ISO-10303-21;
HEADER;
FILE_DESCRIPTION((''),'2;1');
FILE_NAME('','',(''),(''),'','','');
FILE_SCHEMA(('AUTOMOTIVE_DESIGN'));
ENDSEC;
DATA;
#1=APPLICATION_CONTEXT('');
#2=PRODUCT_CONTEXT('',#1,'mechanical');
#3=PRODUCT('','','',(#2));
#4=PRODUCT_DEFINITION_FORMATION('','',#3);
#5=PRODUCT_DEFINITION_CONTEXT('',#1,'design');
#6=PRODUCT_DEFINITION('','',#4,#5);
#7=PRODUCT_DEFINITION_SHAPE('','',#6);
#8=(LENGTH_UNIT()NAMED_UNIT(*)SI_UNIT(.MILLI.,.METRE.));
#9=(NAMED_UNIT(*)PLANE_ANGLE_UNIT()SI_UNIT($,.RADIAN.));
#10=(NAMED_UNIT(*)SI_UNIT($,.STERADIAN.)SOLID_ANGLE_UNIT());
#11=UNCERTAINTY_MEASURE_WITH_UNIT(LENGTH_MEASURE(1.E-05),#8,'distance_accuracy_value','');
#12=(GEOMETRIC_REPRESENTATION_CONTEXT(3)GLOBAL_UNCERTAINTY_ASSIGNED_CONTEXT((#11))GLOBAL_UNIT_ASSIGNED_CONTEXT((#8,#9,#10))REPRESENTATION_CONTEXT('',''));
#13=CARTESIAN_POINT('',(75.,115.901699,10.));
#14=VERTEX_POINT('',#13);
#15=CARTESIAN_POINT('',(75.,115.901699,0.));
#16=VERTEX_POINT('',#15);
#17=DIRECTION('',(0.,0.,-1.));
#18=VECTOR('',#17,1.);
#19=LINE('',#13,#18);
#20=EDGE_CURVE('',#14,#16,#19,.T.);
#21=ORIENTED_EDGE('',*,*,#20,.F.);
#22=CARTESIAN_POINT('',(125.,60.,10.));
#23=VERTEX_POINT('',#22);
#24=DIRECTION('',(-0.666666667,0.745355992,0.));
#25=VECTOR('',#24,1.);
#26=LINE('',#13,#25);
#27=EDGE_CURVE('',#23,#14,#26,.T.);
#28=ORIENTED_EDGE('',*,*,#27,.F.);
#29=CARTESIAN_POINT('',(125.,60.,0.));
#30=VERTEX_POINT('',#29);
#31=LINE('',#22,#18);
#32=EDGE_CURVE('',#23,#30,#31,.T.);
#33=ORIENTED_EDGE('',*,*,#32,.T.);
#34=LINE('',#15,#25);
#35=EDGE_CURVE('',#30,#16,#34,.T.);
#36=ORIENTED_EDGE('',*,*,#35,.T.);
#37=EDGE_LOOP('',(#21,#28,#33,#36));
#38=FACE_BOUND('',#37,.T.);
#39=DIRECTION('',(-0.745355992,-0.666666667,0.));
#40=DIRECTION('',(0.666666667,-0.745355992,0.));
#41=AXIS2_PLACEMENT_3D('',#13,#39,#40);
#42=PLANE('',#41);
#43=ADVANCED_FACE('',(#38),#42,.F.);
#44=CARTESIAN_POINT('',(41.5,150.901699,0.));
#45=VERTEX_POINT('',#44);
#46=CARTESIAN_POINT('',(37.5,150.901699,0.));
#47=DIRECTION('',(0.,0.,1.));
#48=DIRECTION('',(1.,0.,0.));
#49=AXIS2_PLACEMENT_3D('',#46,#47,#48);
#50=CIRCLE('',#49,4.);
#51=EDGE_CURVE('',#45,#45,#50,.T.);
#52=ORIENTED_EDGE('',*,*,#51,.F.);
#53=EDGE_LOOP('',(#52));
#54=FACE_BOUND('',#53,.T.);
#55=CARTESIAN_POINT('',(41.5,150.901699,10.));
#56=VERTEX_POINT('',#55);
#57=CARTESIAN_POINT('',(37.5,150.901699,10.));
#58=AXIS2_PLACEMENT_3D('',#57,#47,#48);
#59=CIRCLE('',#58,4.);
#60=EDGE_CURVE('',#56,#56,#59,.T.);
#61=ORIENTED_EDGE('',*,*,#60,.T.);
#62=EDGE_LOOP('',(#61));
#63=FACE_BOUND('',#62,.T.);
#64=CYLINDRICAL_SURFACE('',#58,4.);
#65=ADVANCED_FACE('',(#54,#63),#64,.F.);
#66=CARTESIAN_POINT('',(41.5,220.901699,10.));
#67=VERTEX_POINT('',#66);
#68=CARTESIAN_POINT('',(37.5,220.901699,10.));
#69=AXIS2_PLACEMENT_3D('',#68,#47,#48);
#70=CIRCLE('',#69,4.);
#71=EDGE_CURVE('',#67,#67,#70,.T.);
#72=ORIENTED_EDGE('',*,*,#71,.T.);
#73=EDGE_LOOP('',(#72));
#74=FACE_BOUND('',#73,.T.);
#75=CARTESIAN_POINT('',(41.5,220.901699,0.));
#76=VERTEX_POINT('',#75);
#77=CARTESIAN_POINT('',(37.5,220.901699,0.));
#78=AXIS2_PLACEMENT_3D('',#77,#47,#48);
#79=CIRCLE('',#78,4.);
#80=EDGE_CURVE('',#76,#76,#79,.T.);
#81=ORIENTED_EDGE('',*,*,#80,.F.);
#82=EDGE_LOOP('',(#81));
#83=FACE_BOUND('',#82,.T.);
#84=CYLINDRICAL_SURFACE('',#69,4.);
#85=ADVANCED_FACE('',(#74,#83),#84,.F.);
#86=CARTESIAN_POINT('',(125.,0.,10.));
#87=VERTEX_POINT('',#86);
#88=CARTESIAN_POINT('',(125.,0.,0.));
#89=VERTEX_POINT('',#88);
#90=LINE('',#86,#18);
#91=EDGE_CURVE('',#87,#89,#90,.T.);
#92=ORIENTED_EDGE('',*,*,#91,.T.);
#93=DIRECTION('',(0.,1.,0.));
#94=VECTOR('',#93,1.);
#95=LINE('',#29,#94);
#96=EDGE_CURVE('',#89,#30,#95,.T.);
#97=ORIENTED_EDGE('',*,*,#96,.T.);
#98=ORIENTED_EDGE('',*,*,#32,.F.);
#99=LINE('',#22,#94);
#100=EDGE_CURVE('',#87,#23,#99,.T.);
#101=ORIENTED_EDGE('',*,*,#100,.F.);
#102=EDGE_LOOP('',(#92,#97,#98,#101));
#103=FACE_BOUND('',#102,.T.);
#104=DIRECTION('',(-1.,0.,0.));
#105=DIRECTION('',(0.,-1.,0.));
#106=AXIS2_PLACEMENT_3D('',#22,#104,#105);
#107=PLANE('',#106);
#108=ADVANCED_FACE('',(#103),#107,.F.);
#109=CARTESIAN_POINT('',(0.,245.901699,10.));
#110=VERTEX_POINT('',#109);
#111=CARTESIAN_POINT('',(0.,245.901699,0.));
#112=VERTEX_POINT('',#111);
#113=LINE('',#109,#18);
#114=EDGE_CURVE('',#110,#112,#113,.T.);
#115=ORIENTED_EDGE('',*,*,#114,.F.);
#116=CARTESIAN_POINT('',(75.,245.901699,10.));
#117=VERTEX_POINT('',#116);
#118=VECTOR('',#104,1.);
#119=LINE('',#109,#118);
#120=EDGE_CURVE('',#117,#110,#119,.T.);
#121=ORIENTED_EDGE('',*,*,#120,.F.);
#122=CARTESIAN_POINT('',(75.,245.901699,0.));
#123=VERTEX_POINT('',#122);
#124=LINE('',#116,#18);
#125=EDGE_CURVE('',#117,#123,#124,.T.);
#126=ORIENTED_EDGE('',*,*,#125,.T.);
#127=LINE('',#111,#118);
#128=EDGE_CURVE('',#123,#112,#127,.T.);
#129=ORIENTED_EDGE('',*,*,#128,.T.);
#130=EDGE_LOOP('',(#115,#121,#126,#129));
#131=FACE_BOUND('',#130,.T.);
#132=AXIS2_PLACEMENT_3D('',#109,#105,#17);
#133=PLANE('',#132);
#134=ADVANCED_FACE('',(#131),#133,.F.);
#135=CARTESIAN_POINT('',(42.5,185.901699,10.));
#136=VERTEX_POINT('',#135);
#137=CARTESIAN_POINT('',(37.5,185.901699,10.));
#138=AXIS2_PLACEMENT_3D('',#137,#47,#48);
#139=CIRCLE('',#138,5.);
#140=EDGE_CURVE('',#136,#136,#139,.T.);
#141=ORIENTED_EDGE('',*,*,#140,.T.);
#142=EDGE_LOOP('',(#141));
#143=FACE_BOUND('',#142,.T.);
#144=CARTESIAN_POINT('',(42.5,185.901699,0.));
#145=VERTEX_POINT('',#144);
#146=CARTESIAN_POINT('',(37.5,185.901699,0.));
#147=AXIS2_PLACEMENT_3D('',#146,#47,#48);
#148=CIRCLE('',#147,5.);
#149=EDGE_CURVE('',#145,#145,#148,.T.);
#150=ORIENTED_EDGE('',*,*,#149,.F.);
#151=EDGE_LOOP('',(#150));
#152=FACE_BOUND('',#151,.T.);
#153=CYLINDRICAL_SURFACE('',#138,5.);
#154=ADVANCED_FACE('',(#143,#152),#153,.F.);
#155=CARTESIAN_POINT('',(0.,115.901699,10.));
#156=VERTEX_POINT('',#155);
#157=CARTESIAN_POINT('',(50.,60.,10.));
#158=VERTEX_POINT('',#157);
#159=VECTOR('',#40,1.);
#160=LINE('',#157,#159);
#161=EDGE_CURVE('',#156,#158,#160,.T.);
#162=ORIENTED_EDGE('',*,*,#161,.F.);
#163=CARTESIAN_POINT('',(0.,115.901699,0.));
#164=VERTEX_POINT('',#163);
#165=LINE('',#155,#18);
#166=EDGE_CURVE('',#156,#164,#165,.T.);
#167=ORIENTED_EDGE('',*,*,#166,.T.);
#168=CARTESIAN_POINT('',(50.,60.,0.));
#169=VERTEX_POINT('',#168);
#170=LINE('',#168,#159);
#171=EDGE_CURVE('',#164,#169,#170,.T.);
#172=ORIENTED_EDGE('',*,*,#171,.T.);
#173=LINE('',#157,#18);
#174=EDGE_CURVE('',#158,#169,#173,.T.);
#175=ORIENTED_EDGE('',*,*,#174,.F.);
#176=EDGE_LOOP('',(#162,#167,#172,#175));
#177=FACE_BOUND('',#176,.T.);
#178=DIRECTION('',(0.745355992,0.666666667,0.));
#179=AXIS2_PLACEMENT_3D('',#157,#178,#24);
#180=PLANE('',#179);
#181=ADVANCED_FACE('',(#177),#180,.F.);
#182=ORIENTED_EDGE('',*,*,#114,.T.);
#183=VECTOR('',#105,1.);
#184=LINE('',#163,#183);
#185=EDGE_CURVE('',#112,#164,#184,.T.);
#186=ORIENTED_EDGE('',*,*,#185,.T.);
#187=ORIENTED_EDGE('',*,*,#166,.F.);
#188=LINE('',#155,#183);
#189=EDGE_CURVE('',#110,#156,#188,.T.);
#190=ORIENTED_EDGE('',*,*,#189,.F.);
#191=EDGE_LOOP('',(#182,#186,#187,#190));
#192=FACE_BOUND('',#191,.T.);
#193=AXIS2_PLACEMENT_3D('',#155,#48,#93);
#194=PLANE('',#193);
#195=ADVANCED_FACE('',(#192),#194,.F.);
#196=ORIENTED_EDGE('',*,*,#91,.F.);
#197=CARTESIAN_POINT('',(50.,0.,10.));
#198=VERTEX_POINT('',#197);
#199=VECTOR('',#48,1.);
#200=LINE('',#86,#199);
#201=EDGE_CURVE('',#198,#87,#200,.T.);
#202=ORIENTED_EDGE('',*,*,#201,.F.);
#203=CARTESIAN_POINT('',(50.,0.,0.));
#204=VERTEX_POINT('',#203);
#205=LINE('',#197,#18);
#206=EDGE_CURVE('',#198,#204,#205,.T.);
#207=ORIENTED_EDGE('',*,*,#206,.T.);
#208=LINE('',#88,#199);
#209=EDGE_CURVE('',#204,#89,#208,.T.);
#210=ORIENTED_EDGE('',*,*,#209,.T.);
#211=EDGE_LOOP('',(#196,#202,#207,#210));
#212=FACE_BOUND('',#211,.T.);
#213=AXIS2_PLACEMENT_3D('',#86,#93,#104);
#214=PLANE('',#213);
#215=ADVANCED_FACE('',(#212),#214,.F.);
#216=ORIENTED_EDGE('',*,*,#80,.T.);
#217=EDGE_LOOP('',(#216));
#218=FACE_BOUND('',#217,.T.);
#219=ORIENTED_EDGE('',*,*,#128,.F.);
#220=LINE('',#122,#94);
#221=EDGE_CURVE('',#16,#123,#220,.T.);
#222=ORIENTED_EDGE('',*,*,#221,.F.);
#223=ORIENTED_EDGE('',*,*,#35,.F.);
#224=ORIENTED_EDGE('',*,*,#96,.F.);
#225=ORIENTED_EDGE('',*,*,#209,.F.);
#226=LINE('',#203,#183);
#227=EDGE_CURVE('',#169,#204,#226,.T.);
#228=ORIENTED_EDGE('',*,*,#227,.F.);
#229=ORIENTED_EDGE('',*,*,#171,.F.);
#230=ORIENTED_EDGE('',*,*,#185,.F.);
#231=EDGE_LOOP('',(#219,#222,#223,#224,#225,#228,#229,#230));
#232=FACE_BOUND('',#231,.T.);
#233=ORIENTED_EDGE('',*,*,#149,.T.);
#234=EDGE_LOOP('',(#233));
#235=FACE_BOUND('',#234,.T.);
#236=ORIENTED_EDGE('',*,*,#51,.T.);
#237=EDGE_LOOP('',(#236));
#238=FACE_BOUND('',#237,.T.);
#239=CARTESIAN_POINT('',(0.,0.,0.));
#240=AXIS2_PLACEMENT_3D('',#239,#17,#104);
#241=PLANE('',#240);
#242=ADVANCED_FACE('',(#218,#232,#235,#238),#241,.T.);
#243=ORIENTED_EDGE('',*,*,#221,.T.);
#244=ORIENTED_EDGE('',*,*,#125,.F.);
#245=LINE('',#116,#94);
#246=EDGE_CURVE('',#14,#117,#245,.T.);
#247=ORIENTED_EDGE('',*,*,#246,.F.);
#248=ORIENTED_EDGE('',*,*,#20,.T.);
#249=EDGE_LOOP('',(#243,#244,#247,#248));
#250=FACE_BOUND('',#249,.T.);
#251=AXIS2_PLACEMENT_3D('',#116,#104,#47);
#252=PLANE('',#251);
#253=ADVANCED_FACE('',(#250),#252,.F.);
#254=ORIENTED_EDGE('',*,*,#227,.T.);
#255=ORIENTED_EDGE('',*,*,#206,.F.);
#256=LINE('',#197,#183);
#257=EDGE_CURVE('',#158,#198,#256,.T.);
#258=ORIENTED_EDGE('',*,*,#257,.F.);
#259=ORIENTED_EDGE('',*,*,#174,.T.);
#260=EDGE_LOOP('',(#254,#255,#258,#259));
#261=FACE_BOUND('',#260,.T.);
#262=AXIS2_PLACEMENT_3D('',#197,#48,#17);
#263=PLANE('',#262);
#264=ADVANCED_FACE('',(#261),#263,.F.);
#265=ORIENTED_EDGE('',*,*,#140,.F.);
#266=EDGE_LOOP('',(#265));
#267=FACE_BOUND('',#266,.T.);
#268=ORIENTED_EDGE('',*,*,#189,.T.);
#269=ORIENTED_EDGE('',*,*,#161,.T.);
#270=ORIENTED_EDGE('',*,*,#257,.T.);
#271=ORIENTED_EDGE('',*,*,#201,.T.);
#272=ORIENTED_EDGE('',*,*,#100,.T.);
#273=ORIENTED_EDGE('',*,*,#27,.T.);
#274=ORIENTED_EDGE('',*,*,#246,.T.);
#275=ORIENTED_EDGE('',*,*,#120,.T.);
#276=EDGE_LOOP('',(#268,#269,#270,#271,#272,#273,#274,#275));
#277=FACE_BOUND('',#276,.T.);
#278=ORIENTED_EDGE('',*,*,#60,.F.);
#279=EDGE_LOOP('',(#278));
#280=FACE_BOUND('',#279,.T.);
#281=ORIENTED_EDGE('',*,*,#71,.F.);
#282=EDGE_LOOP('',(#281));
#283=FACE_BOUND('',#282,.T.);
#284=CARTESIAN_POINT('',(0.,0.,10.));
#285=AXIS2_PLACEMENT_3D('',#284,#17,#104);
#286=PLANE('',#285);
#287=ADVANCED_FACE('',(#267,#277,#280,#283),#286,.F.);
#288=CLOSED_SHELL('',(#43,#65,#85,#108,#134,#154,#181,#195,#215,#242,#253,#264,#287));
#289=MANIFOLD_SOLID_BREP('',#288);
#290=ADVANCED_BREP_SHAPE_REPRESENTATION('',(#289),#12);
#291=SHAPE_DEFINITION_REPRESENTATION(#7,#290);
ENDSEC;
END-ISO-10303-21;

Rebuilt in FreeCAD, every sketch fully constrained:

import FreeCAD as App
import Part
import Sketcher

V = App.Vector
Q = App.Units.Quantity


def add_polygon(sketch, points):
    """Adds a closed chain of lines whose ends are joined by coincident constraints."""
    first, n = sketch.GeometryCount, len(points)
    for a, b in zip(points, points[1:] + points[:1]):
        sketch.addGeometry(Part.LineSegment(App.Vector(*a, 0), App.Vector(*b, 0)), False)
    for i in range(n):
        sketch.addConstraint(Sketcher.Constraint("Coincident", first + i, 2, first + (i + 1) % n, 1))

doc = App.newDocument("Part")
params = doc.addObject("Spreadsheet::Sheet", "Params")
for row, (alias, value) in enumerate([
    ("sketch1_width", "75 mm"),
    ("sketch1_height", "130 mm"),
    ("sketch1_height2", "60 mm"),
    ("sketch1_length", "75 mm"),
    ("pad1_length", "10 mm"),
    ("sketch2_diameter", "8 mm"),
    ("hole_diameter", "8 mm"),
    ("sketch3_diameter", "10 mm"),
    ("hole2_diameter", "10 mm"),
], start=1):
    params.set(f"A{row}", alias)
    params.set(f"B{row}", "=" + value)
    params.setAlias(f"B{row}", alias)

body = doc.addObject("PartDesign::Body", "Body")

# Sketch on XY plane
sketch1 = doc.addObject("Sketcher::SketchObject", "Sketch")
body.addObject(sketch1)
sketch1.AttachmentSupport = (doc.XY_Plane, [""])
sketch1.MapMode = "FlatFace"
add_polygon(sketch1, [(75, 246), (0, 246), (0, 116), (50, 60), (50, 0), (125, 0), (125, 60), (75, 116)])  # lines 0-7
sketch1.addConstraint(Sketcher.Constraint("Horizontal", 0))
sketch1.addConstraint(Sketcher.Constraint("Vertical", 1))
sketch1.addConstraint(Sketcher.Constraint("Vertical", 3))
sketch1.addConstraint(Sketcher.Constraint("Horizontal", 4))
sketch1.addConstraint(Sketcher.Constraint("Vertical", 5))
sketch1.addConstraint(Sketcher.Constraint("Vertical", 7))
sketch1.addConstraint(Sketcher.Constraint("PointOnObject", 0, 2, -2))
sketch1.addConstraint(Sketcher.Constraint("PointOnObject", 3, 2, -1))
sketch1.addConstraint(Sketcher.Constraint("Parallel", 2, 6))
sketch1.addConstraint(Sketcher.Constraint("Horizontal", 2, 2, 5, 2))
sketch1.addConstraint(Sketcher.Constraint("Horizontal", 1, 2, 6, 2))
sketch1.addConstraint(Sketcher.Constraint("DistanceX", 0, 2, 0, 1, Q("75 mm")))
sketch1.addConstraint(Sketcher.Constraint("DistanceY", 1, 2, 1, 1, Q("130 mm")))
sketch1.addConstraint(Sketcher.Constraint("DistanceY", 3, 2, 3, 1, Q("60 mm")))
sketch1.addConstraint(Sketcher.Constraint("Distance", 2, Q("75 mm")))
sketch1.addConstraint(Sketcher.Constraint("DistanceX", -1, 1, 2, 2, Q("50 mm")))
sketch1.setExpression("Constraints[19]", "Params.sketch1_width")
sketch1.setExpression("Constraints[20]", "Params.sketch1_height")
sketch1.setExpression("Constraints[21]", "Params.sketch1_height2")
sketch1.setExpression("Constraints[22]", "Params.sketch1_length")
pad1 = doc.addObject("PartDesign::Pad", "Pad")
body.addObject(pad1)
pad1.Profile = sketch1
pad1.setExpression("Length", "Params.pad1_length")

# Sketch on XY plane
sketch2 = doc.addObject("Sketcher::SketchObject", "Sketch001")
body.addObject(sketch2)
sketch2.AttachmentSupport = (doc.XY_Plane, [""])
sketch2.MapMode = "FlatFace"
sketch2.AttachmentOffset = App.Placement(V(0, 0, 10), App.Rotation())
sketch2.addGeometry(Part.Circle(V(37.5, 220.9, 0), V(0, 0, 1), 4), False)
sketch2.addGeometry(Part.Circle(V(37.5, 150.9, 0), V(0, 0, 1), 4), False)
sketch2.addConstraint(Sketcher.Constraint("Equal", 0, 1))
sketch2.addConstraint(Sketcher.Constraint("Vertical", 0, 3, 1, 3))
sketch2.addConstraint(Sketcher.Constraint("Diameter", 0, Q("8 mm")))
sketch2.addConstraint(Sketcher.Constraint("DistanceY", 1, 3, 0, 3, Q("70 mm")))
sketch2.addConstraint(Sketcher.Constraint("DistanceX", -1, 1, 0, 3, Q("37.5 mm")))
sketch2.addConstraint(Sketcher.Constraint("DistanceY", -1, 1, 0, 3, Q("220.901699 mm")))
sketch2.setExpression("Constraints[2]", "Params.sketch2_diameter")
doc.recompute()
hole = doc.addObject("PartDesign::Hole", "Hole")
body.addObject(hole)
hole.Profile = sketch2
hole.ThreadType = "None"
hole.setExpression("Diameter", "Params.hole_diameter")
hole.DepthType = "ThroughAll"

# Sketch on XY plane
sketch3 = doc.addObject("Sketcher::SketchObject", "Sketch002")
body.addObject(sketch3)
sketch3.AttachmentSupport = (doc.XY_Plane, [""])
sketch3.MapMode = "FlatFace"
sketch3.AttachmentOffset = App.Placement(V(0, 0, 10), App.Rotation())
sketch3.addGeometry(Part.Circle(V(38, 186, 0), V(0, 0, 1), 5), False)
sketch3.addConstraint(Sketcher.Constraint("Diameter", 0, Q("10 mm")))
sketch3.addConstraint(Sketcher.Constraint("DistanceX", -1, 1, 0, 3, Q("37.5 mm")))
sketch3.addConstraint(Sketcher.Constraint("DistanceY", -1, 1, 0, 3, Q("185.901699 mm")))
sketch3.setExpression("Constraints[0]", "Params.sketch3_diameter")
doc.recompute()
hole2 = doc.addObject("PartDesign::Hole", "Hole001")
body.addObject(hole2)
hole2.Profile = sketch3
hole2.ThreadType = "None"
hole2.setExpression("Diameter", "Params.hole2_diameter")
hole2.DepthType = "ThroughAll"

doc.recompute()
